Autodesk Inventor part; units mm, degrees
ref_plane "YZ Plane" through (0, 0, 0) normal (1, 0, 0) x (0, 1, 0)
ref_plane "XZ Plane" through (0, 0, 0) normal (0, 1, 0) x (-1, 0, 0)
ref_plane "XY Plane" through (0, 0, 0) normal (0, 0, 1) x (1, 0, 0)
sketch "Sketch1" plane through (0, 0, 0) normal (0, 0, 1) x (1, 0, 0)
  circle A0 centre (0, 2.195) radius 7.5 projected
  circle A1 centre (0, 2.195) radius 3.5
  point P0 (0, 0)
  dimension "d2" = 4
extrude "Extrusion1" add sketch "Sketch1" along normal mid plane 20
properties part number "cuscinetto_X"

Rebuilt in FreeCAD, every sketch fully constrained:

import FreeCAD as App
import Part
import Sketcher

doc = App.newDocument("Part")
body = doc.addObject("PartDesign::Body", "Body")

# Sketch on XY plane
sketch1 = body.newObject("Sketcher::SketchObject", "Sketch")
sketch1.AttachmentSupport = (doc.getObject("XY_Plane"), [""])
sketch1.MapMode = "FlatFace"
sketch1.addGeometry([
    Part.Circle(App.Vector(0, 2.2, 0), App.Vector(0, 0, 1), 7.5),
    Part.Circle(App.Vector(0, 2.2, 0), App.Vector(0, 0, 1), 3.5),
], False)
sketch1.addConstraint([
    Sketcher.Constraint("Coincident", 1, 3, 0, 3),
    Sketcher.Constraint("PointOnObject", 0, 3, -2),
    Sketcher.Constraint("Diameter", 0, 15.0),
    Sketcher.Constraint("Diameter", 1, 7.0),
    Sketcher.Constraint("DistanceY", -1, 1, 0, 3, 2.195),
])
pad1 = body.newObject("PartDesign::Pad", "Pad")
pad1.Profile = sketch1
pad1.Length = 20
pad1.Midplane = True

doc.recompute()
